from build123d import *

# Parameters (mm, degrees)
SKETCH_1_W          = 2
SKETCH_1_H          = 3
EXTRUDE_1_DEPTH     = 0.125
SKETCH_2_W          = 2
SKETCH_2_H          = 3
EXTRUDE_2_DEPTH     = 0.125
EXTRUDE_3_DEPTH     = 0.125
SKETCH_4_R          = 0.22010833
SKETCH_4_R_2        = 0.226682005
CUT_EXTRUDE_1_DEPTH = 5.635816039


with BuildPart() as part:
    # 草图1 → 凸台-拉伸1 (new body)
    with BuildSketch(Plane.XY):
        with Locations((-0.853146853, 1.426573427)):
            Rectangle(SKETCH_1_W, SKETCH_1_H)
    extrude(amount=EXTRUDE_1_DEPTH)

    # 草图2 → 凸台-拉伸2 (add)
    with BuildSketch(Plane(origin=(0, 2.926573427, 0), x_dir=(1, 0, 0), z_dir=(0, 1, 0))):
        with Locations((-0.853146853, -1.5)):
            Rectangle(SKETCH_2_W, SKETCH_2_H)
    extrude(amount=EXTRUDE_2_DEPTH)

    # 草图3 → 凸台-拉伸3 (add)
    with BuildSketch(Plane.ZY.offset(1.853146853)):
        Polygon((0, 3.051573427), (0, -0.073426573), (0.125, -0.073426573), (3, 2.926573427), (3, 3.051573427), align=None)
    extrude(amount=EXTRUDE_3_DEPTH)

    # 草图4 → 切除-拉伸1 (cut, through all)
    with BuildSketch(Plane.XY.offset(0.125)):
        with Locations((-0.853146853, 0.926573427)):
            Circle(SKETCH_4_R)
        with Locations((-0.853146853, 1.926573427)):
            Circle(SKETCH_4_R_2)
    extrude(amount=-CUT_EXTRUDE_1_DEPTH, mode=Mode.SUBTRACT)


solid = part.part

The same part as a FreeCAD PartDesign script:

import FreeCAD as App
import Part
import Sketcher

V = App.Vector


def add_polygon(sketch, points):
    """Adds a closed chain of lines whose ends are joined by coincident constraints."""
    first, n = sketch.GeometryCount, len(points)
    for a, b in zip(points, points[1:] + points[:1]):
        sketch.addGeometry(Part.LineSegment(App.Vector(*a, 0), App.Vector(*b, 0)), False)
    for i in range(n):
        sketch.addConstraint(Sketcher.Constraint("Coincident", first + i, 2, first + (i + 1) % n, 1))

doc = App.newDocument("Part")
body = doc.addObject("PartDesign::Body", "Body")

# Sketch on XY plane
sketch1 = body.newObject("Sketcher::SketchObject", "Sketch")
sketch1.AttachmentSupport = (doc.getObject("XY_Plane"), [""])
sketch1.MapMode = "FlatFace"
add_polygon(sketch1, [(-1.9, 2.9), (-1.9, -0.1), (0.1, -0.1), (0.1, 2.9)])  # lines 0-3
sketch1.addConstraint([
    Sketcher.Constraint("Vertical", 0),
    Sketcher.Constraint("Horizontal", 1),
    Sketcher.Constraint("Vertical", 2),
    Sketcher.Constraint("Horizontal", 3),
    Sketcher.Constraint("DistanceX", 1, 1, 1, 2, 2.0),
    Sketcher.Constraint("DistanceY", 0, 2, 0, 1, 3.0),
    Sketcher.Constraint("DistanceX", 0, 2, -1, 1, 1.853147),
    Sketcher.Constraint("DistanceY", 0, 2, -1, 1, 0.073427),
])
pad1 = body.newObject("PartDesign::Pad", "Pad")
pad1.Profile = sketch1
pad1.Length = 0.125

# Sketch on XZ plane
sketch2 = body.newObject("Sketcher::SketchObject", "Sketch001")
sketch2.AttachmentSupport = (doc.getObject("XZ_Plane"), [""])
sketch2.MapMode = "FlatFace"
sketch2.AttachmentOffset = App.Placement(V(0, 0, -2.926573), App.Rotation())
add_polygon(sketch2, [(-1.9, 0), (-1.9, 3), (0.1, 3), (0.1, 0)])  # lines 0-3
sketch2.addConstraint([
    Sketcher.Constraint("Vertical", 0),
    Sketcher.Constraint("Horizontal", 1),
    Sketcher.Constraint("Vertical", 2),
    Sketcher.Constraint("Horizontal", 3),
    Sketcher.Constraint("PointOnObject", 2, 2, -1),
    Sketcher.Constraint("DistanceX", 1, 1, 1, 2, 2.0),
    Sketcher.Constraint("DistanceY", 0, 1, 0, 2, 3.0),
    Sketcher.Constraint("DistanceX", 0, 2, -1, 1, 1.853147),
])
pad2 = body.newObject("PartDesign::Pad", "Pad001")
pad2.Profile = sketch2
pad2.Length = 0.125
pad2.Reversed = True

# Sketch on YZ plane
sketch3 = body.newObject("Sketcher::SketchObject", "Sketch002")
sketch3.AttachmentSupport = (doc.getObject("YZ_Plane"), [""])
sketch3.MapMode = "FlatFace"
sketch3.AttachmentOffset = App.Placement(V(0, 0, -1.853147), App.Rotation())
add_polygon(sketch3, [(3.05, 0), (-0.07, 0), (-0.07, 0.12), (2.93, 3), (3.05, 3)])  # lines 0-4
sketch3.addConstraint([
    Sketcher.Constraint("Horizontal", 0),
    Sketcher.Constraint("Vertical", 1),
    Sketcher.Constraint("Horizontal", 3),
    Sketcher.Constraint("Vertical", 4),
    Sketcher.Constraint("PointOnObject", 0, 2, -1),
    Sketcher.Constraint("Equal", 3, 1),
    Sketcher.Constraint("DistanceY", 4, 2, 4, 1, 3.0),
    Sketcher.Constraint("DistanceX", 1, 2, 2, 2, 3.0),
    Sketcher.Constraint("DistanceX", 0, 2, 0, 1, 3.125),
    Sketcher.Constraint("DistanceX", 0, 2, -1, 1, 0.073427),
])
pad3 = body.newObject("PartDesign::Pad", "Pad002")
pad3.Profile = sketch3
pad3.Length = 0.125
pad3.Reversed = True

# Sketch on XY plane
sketch4 = body.newObject("Sketcher::SketchObject", "Sketch003")
sketch4.AttachmentSupport = (doc.getObject("XY_Plane"), [""])
sketch4.MapMode = "FlatFace"
sketch4.AttachmentOffset = App.Placement(V(0, 0, 0.125), App.Rotation())
sketch4.addGeometry([
    Part.Circle(V(-0.85, 0.93, 0), V(0, 0, 1), 0.22),
    Part.Circle(V(-0.85, 1.93, 0), V(0, 0, 1), 0.23),
], False)
sketch4.addConstraint([
    Sketcher.Constraint("Vertical", 0, 3, 1, 3),
    Sketcher.Constraint("DistanceY", 0, 3, 1, 3, 1.0),
    Sketcher.Constraint("Diameter", 0, 0.440217),
    Sketcher.Constraint("Diameter", 1, 0.453364),
    Sketcher.Constraint("DistanceX", 0, 3, -1, 1, 0.853147),
    Sketcher.Constraint("DistanceY", -1, 1, 0, 3, 0.926573),
])
pocket1 = body.newObject("PartDesign::Pocket", "Pocket")
pocket1.Profile = sketch4
pocket1.Type = "ThroughAll"

doc.recompute()
